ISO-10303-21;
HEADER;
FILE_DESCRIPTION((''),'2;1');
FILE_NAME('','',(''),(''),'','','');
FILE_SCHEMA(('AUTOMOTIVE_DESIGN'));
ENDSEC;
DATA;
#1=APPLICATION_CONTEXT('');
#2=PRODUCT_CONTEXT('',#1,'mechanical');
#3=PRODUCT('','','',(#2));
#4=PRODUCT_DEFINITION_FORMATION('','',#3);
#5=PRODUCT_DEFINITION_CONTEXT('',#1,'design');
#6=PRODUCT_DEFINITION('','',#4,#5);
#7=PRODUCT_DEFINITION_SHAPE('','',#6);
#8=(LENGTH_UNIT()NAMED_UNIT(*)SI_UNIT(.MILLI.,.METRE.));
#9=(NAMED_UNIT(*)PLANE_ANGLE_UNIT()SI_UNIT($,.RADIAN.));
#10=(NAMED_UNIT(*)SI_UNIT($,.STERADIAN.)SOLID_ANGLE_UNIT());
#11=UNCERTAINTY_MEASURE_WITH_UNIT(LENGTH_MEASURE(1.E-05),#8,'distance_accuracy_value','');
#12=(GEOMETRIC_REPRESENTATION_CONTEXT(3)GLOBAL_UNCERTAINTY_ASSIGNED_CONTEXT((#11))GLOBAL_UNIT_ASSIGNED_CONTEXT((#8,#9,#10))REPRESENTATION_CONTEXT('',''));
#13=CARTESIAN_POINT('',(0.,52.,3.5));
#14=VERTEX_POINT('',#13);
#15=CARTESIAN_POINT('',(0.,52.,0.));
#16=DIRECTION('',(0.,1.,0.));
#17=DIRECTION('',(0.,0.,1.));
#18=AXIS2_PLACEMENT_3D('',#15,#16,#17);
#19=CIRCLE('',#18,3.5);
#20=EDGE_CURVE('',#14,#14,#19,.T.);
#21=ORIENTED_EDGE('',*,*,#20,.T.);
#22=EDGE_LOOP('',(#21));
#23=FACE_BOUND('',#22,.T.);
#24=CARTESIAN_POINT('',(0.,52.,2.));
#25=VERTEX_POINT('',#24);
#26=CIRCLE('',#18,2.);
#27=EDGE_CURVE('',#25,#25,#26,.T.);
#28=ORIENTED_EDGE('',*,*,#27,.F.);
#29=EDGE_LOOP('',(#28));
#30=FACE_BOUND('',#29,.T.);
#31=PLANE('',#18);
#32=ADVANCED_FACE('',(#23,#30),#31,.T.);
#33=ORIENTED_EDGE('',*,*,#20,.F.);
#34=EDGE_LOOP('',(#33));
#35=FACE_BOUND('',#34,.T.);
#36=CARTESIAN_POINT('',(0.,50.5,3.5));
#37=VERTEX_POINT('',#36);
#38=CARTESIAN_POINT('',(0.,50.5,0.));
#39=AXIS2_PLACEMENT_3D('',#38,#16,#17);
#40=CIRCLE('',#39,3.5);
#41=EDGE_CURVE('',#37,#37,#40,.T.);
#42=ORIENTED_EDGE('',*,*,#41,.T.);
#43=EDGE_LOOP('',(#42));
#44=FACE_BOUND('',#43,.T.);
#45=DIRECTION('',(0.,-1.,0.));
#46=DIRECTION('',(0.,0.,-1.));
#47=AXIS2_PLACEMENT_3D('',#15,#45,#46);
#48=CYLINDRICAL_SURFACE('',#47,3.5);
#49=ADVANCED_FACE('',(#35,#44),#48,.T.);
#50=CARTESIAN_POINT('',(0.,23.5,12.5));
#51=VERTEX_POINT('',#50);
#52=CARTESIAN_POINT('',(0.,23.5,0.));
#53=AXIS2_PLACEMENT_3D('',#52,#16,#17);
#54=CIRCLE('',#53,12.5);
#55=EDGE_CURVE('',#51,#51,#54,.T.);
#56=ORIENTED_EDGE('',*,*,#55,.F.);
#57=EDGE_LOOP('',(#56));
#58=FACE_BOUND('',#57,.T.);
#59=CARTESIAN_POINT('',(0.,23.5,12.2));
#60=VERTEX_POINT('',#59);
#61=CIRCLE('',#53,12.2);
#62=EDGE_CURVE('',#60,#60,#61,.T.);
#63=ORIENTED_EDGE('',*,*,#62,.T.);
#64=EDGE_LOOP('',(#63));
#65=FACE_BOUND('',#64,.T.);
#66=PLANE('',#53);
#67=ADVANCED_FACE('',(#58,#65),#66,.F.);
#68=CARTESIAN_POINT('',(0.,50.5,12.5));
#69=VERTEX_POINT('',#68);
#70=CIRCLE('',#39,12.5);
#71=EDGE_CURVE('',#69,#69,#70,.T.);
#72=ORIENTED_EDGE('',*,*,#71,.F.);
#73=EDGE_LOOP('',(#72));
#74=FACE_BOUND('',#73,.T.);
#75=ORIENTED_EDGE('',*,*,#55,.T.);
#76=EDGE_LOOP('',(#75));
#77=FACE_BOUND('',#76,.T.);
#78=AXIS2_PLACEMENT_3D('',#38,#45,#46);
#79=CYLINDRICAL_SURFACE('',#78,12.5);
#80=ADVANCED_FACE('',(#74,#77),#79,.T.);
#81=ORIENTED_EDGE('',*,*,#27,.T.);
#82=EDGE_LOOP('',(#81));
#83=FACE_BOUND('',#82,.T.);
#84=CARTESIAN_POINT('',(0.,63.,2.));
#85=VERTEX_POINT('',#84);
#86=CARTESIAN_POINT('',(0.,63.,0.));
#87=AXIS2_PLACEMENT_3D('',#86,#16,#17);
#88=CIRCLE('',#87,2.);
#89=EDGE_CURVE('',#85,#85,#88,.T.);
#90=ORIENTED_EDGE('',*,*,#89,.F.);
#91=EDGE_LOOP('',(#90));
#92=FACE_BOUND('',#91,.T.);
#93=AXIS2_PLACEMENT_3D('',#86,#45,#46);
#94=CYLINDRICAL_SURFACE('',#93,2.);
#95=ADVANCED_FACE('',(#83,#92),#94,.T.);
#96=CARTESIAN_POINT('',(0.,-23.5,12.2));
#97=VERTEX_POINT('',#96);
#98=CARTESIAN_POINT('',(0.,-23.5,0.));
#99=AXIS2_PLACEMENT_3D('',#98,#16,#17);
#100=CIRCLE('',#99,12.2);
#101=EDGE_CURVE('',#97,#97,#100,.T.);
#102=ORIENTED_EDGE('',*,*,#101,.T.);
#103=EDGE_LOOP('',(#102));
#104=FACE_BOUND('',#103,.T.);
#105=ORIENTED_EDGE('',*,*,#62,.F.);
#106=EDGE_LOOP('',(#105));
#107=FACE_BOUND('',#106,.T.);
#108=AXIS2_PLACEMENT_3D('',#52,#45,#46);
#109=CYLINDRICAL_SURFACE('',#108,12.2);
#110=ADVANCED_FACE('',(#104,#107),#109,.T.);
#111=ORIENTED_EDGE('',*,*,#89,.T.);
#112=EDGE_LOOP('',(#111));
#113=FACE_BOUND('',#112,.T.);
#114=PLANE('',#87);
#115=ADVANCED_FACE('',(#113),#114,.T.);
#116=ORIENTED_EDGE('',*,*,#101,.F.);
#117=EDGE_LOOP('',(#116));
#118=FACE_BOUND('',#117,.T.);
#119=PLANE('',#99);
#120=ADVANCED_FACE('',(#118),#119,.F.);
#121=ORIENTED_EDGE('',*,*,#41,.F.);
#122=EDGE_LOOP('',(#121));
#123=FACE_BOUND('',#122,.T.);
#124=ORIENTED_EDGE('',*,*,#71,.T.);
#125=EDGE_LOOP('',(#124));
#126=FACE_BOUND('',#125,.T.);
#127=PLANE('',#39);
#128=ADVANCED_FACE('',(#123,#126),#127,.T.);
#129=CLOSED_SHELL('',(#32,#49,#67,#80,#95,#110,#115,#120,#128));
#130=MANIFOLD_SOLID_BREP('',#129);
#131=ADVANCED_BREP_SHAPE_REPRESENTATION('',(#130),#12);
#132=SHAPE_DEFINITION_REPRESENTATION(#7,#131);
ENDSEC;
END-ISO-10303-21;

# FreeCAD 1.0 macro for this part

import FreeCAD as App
import Part
import Sketcher
from FreeCAD import Vector
Q = App.Units.Quantity

doc = App.newDocument("Part")
body = doc.addObject("PartDesign::Body", "Body")

sketch1 = doc.addObject("Sketcher::SketchObject", "Sketch")
body.addObject(sketch1)
sketch1.AttachmentSupport = (doc.XZ_Plane, [""])
sketch1.MapMode = "FlatFace"
sketch1.addGeometry(Part.Circle(Vector(0, 0, 0), Vector(0, 0, 1), 12.2), False)
sketch1.addConstraint([
    Sketcher.Constraint("Coincident", 0, 3, -1, 1),
    Sketcher.Constraint("Diameter", 0, Q("24.4 mm")),
])
pad1 = doc.addObject("PartDesign::Pad", "Pad")
body.addObject(pad1)
pad1.Profile = sketch1
pad1.Length = 47
pad1.Midplane = True

sketch2 = doc.addObject("Sketcher::SketchObject", "Sketch001")
body.addObject(sketch2)
sketch2.AttachmentSupport = (doc.XZ_Plane, [""])
sketch2.MapMode = "FlatFace"
sketch2.AttachmentOffset = App.Placement(Vector(0, 0, -23.5), App.Rotation())
sketch2.addGeometry(Part.Circle(Vector(0, 0, 0), Vector(0, 0, 1), 12.5), False)
sketch2.addConstraint([
    Sketcher.Constraint("Coincident", 0, 3, -1, 1),
    Sketcher.Constraint("Diameter", 0, Q("25 mm")),
])
pad2 = doc.addObject("PartDesign::Pad", "Pad001")
body.addObject(pad2)
pad2.Profile = sketch2
pad2.Length = 27
pad2.Reversed = True

sketch3 = doc.addObject("Sketcher::SketchObject", "Sketch002")
body.addObject(sketch3)
sketch3.AttachmentSupport = (doc.XZ_Plane, [""])
sketch3.MapMode = "FlatFace"
sketch3.AttachmentOffset = App.Placement(Vector(0, 0, -50.5), App.Rotation())
sketch3.addGeometry(Part.Circle(Vector(0, 0, 0), Vector(0, 0, 1), 3.5), False)
sketch3.addConstraint([
    Sketcher.Constraint("Coincident", 0, 3, -1, 1),
    Sketcher.Constraint("Diameter", 0, Q("7 mm")),
])
pad3 = doc.addObject("PartDesign::Pad", "Pad002")
body.addObject(pad3)
pad3.Profile = sketch3
pad3.Length = 1.5
pad3.Reversed = True

sketch4 = doc.addObject("Sketcher::SketchObject", "Sketch003")
body.addObject(sketch4)
sketch4.AttachmentSupport = (doc.XZ_Plane, [""])
sketch4.MapMode = "FlatFace"
sketch4.AttachmentOffset = App.Placement(Vector(0, 0, -52), App.Rotation())
sketch4.addGeometry(Part.Circle(Vector(0, 0, 0), Vector(0, 0, 1), 2), False)
sketch4.addConstraint([
    Sketcher.Constraint("Coincident", 0, 3, -1, 1),
    Sketcher.Constraint("Diameter", 0, Q("4 mm")),
])
pad4 = doc.addObject("PartDesign::Pad", "Pad003")
body.addObject(pad4)
pad4.Profile = sketch4
pad4.Length = 11
pad4.Reversed = True

doc.recompute()
